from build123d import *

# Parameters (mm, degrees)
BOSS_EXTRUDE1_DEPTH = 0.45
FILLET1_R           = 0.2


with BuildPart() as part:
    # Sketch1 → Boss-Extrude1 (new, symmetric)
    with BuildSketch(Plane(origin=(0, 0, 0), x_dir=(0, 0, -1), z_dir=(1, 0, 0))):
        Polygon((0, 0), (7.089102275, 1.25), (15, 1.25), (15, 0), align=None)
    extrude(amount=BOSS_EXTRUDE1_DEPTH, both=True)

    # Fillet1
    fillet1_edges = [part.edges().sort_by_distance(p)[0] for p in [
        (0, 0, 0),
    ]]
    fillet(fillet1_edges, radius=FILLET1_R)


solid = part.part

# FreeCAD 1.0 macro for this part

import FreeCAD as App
import Part
import Sketcher

V = App.Vector
Q = App.Units.Quantity


def edges_at(feature, points):
    """Names of the edges that pass closest to the given points."""
    edges = feature.Shape.Edges
    near = lambda p: min(range(len(edges)), key=lambda i: edges[i].distToShape(Part.Vertex(*p))[0])
    return sorted({f"Edge{near(p) + 1}" for p in points})


def add_polygon(sketch, points):
    """Adds a closed chain of lines whose ends are joined by coincident constraints."""
    first, n = sketch.GeometryCount, len(points)
    for a, b in zip(points, points[1:] + points[:1]):
        sketch.addGeometry(Part.LineSegment(App.Vector(*a, 0), App.Vector(*b, 0)), False)
    for i in range(n):
        sketch.addConstraint(Sketcher.Constraint("Coincident", first + i, 2, first + (i + 1) % n, 1))

doc = App.newDocument("Part")
body = doc.addObject("PartDesign::Body", "Body")

sketch1 = doc.addObject("Sketcher::SketchObject", "Sketch")
body.addObject(sketch1)
sketch1.AttachmentSupport = (doc.YZ_Plane, [""])
sketch1.MapMode = "FlatFace"
add_polygon(sketch1, [(1.2, -7.1), (0, 0), (0, -15), (1.2, -15)])
sketch1.addConstraint(Sketcher.Constraint("Vertical", 1))
sketch1.addConstraint(Sketcher.Constraint("Horizontal", 2))
sketch1.addConstraint(Sketcher.Constraint("Vertical", 3))
sketch1.addConstraint(Sketcher.Constraint("Coincident", 0, 2, -1, 1))
sketch1.addConstraint(Sketcher.Constraint("DistanceY", 1, 2, 1, 1, Q("15 mm")))
sketch1.addConstraint(Sketcher.Constraint("Angle", 0, Q("100 deg")))
sketch1.addConstraint(Sketcher.Constraint("DistanceX", 2, 1, 2, 2, Q("1.25 mm")))
pad1 = doc.addObject("PartDesign::Pad", "Pad")
body.addObject(pad1)
pad1.Profile = sketch1
pad1.Length = 0.9
pad1.Midplane = True
doc.recompute()

fillet = doc.addObject("PartDesign::Fillet", "Fillet")
body.addObject(fillet)
fillet.Base = (pad1, edges_at(pad1, [(0, 0, 0)]))
fillet.Radius = 0.2

doc.recompute()
